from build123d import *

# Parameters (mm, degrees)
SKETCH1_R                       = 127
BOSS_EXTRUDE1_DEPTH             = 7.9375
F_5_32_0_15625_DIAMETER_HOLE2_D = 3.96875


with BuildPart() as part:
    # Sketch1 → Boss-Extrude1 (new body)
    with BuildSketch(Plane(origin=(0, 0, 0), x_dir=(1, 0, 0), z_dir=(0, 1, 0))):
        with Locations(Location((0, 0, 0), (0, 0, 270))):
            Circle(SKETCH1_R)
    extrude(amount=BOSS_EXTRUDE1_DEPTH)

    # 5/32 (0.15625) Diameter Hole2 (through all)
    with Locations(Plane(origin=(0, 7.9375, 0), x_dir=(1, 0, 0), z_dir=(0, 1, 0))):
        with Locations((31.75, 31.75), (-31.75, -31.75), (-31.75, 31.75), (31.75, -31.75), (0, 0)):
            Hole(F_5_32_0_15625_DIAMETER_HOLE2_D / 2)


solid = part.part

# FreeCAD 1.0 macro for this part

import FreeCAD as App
import Part
import Sketcher
Q = App.Units.Quantity

doc = App.newDocument("Part")
body = doc.addObject("PartDesign::Body", "Body")

sketch1 = body.newObject("Sketcher::SketchObject", "Sketch")
sketch1.AttachmentSupport = (doc.getObject("XZ_Plane"), [""])
sketch1.MapMode = "FlatFace"
sketch1.addGeometry(Part.Circle(App.Vector(0, 0, 0), App.Vector(0, 0, 1), 127), False)
sketch1.addConstraint([
    Sketcher.Constraint("Coincident", 0, 3, -1, 1),
    Sketcher.Constraint("Diameter", 0, Q("10 in")),
])
pad1 = body.newObject("PartDesign::Pad", "Pad")
pad1.Profile = sketch1
pad1.Length = Q("0.3125 in")
pad1.Reversed = True

sketch2 = body.newObject("Sketcher::SketchObject", "Sketch001")
sketch2.AttachmentSupport = (doc.getObject("XZ_Plane"), [""])
sketch2.MapMode = "FlatFace"
sketch2.AttachmentOffset = App.Placement(App.Vector(0, 0, -0.3125 * 25.4), App.Rotation())
sketch2.addGeometry([
    Part.Circle(App.Vector(31.8, -31.8, 0), App.Vector(0, 0, 1), 2),
    Part.Circle(App.Vector(-31.8, 31.8, 0), App.Vector(0, 0, 1), 2),
    Part.Circle(App.Vector(-31.8, -31.8, 0), App.Vector(0, 0, 1), 2),
    Part.Circle(App.Vector(31.8, 31.8, 0), App.Vector(0, 0, 1), 2),
    Part.Circle(App.Vector(0, 0, 0), App.Vector(0, 0, 1), 2),
], False)
sketch2.addConstraint([
    Sketcher.Constraint("Coincident", 4, 3, -1, 1),
    Sketcher.Constraint("Equal", 0, 1),
    Sketcher.Constraint("Equal", 1, 2),
    Sketcher.Constraint("Equal", 2, 3),
    Sketcher.Constraint("Equal", 3, 4),
    Sketcher.Constraint("Symmetric", 0, 3, 1, 3, -1, 1),
    Sketcher.Constraint("Symmetric", 2, 3, 3, 3, -1, 1),
    Sketcher.Constraint("Symmetric", 0, 3, 2, 3, -2),
    Sketcher.Constraint("Diameter", 0, Q("0.15625 in")),
    Sketcher.Constraint("DistanceX", 1, 3, 0, 3, Q("2.5 in")),
    Sketcher.Constraint("DistanceY", 0, 3, 1, 3, Q("2.5 in")),
])
doc.recompute()
hole = body.newObject("PartDesign::Hole", "Hole")
hole.Profile = sketch2
hole.ThreadType = "None"
hole.Diameter = Q("0.15625 in")
hole.DepthType = "ThroughAll"
hole.Reversed = True

doc.recompute()
